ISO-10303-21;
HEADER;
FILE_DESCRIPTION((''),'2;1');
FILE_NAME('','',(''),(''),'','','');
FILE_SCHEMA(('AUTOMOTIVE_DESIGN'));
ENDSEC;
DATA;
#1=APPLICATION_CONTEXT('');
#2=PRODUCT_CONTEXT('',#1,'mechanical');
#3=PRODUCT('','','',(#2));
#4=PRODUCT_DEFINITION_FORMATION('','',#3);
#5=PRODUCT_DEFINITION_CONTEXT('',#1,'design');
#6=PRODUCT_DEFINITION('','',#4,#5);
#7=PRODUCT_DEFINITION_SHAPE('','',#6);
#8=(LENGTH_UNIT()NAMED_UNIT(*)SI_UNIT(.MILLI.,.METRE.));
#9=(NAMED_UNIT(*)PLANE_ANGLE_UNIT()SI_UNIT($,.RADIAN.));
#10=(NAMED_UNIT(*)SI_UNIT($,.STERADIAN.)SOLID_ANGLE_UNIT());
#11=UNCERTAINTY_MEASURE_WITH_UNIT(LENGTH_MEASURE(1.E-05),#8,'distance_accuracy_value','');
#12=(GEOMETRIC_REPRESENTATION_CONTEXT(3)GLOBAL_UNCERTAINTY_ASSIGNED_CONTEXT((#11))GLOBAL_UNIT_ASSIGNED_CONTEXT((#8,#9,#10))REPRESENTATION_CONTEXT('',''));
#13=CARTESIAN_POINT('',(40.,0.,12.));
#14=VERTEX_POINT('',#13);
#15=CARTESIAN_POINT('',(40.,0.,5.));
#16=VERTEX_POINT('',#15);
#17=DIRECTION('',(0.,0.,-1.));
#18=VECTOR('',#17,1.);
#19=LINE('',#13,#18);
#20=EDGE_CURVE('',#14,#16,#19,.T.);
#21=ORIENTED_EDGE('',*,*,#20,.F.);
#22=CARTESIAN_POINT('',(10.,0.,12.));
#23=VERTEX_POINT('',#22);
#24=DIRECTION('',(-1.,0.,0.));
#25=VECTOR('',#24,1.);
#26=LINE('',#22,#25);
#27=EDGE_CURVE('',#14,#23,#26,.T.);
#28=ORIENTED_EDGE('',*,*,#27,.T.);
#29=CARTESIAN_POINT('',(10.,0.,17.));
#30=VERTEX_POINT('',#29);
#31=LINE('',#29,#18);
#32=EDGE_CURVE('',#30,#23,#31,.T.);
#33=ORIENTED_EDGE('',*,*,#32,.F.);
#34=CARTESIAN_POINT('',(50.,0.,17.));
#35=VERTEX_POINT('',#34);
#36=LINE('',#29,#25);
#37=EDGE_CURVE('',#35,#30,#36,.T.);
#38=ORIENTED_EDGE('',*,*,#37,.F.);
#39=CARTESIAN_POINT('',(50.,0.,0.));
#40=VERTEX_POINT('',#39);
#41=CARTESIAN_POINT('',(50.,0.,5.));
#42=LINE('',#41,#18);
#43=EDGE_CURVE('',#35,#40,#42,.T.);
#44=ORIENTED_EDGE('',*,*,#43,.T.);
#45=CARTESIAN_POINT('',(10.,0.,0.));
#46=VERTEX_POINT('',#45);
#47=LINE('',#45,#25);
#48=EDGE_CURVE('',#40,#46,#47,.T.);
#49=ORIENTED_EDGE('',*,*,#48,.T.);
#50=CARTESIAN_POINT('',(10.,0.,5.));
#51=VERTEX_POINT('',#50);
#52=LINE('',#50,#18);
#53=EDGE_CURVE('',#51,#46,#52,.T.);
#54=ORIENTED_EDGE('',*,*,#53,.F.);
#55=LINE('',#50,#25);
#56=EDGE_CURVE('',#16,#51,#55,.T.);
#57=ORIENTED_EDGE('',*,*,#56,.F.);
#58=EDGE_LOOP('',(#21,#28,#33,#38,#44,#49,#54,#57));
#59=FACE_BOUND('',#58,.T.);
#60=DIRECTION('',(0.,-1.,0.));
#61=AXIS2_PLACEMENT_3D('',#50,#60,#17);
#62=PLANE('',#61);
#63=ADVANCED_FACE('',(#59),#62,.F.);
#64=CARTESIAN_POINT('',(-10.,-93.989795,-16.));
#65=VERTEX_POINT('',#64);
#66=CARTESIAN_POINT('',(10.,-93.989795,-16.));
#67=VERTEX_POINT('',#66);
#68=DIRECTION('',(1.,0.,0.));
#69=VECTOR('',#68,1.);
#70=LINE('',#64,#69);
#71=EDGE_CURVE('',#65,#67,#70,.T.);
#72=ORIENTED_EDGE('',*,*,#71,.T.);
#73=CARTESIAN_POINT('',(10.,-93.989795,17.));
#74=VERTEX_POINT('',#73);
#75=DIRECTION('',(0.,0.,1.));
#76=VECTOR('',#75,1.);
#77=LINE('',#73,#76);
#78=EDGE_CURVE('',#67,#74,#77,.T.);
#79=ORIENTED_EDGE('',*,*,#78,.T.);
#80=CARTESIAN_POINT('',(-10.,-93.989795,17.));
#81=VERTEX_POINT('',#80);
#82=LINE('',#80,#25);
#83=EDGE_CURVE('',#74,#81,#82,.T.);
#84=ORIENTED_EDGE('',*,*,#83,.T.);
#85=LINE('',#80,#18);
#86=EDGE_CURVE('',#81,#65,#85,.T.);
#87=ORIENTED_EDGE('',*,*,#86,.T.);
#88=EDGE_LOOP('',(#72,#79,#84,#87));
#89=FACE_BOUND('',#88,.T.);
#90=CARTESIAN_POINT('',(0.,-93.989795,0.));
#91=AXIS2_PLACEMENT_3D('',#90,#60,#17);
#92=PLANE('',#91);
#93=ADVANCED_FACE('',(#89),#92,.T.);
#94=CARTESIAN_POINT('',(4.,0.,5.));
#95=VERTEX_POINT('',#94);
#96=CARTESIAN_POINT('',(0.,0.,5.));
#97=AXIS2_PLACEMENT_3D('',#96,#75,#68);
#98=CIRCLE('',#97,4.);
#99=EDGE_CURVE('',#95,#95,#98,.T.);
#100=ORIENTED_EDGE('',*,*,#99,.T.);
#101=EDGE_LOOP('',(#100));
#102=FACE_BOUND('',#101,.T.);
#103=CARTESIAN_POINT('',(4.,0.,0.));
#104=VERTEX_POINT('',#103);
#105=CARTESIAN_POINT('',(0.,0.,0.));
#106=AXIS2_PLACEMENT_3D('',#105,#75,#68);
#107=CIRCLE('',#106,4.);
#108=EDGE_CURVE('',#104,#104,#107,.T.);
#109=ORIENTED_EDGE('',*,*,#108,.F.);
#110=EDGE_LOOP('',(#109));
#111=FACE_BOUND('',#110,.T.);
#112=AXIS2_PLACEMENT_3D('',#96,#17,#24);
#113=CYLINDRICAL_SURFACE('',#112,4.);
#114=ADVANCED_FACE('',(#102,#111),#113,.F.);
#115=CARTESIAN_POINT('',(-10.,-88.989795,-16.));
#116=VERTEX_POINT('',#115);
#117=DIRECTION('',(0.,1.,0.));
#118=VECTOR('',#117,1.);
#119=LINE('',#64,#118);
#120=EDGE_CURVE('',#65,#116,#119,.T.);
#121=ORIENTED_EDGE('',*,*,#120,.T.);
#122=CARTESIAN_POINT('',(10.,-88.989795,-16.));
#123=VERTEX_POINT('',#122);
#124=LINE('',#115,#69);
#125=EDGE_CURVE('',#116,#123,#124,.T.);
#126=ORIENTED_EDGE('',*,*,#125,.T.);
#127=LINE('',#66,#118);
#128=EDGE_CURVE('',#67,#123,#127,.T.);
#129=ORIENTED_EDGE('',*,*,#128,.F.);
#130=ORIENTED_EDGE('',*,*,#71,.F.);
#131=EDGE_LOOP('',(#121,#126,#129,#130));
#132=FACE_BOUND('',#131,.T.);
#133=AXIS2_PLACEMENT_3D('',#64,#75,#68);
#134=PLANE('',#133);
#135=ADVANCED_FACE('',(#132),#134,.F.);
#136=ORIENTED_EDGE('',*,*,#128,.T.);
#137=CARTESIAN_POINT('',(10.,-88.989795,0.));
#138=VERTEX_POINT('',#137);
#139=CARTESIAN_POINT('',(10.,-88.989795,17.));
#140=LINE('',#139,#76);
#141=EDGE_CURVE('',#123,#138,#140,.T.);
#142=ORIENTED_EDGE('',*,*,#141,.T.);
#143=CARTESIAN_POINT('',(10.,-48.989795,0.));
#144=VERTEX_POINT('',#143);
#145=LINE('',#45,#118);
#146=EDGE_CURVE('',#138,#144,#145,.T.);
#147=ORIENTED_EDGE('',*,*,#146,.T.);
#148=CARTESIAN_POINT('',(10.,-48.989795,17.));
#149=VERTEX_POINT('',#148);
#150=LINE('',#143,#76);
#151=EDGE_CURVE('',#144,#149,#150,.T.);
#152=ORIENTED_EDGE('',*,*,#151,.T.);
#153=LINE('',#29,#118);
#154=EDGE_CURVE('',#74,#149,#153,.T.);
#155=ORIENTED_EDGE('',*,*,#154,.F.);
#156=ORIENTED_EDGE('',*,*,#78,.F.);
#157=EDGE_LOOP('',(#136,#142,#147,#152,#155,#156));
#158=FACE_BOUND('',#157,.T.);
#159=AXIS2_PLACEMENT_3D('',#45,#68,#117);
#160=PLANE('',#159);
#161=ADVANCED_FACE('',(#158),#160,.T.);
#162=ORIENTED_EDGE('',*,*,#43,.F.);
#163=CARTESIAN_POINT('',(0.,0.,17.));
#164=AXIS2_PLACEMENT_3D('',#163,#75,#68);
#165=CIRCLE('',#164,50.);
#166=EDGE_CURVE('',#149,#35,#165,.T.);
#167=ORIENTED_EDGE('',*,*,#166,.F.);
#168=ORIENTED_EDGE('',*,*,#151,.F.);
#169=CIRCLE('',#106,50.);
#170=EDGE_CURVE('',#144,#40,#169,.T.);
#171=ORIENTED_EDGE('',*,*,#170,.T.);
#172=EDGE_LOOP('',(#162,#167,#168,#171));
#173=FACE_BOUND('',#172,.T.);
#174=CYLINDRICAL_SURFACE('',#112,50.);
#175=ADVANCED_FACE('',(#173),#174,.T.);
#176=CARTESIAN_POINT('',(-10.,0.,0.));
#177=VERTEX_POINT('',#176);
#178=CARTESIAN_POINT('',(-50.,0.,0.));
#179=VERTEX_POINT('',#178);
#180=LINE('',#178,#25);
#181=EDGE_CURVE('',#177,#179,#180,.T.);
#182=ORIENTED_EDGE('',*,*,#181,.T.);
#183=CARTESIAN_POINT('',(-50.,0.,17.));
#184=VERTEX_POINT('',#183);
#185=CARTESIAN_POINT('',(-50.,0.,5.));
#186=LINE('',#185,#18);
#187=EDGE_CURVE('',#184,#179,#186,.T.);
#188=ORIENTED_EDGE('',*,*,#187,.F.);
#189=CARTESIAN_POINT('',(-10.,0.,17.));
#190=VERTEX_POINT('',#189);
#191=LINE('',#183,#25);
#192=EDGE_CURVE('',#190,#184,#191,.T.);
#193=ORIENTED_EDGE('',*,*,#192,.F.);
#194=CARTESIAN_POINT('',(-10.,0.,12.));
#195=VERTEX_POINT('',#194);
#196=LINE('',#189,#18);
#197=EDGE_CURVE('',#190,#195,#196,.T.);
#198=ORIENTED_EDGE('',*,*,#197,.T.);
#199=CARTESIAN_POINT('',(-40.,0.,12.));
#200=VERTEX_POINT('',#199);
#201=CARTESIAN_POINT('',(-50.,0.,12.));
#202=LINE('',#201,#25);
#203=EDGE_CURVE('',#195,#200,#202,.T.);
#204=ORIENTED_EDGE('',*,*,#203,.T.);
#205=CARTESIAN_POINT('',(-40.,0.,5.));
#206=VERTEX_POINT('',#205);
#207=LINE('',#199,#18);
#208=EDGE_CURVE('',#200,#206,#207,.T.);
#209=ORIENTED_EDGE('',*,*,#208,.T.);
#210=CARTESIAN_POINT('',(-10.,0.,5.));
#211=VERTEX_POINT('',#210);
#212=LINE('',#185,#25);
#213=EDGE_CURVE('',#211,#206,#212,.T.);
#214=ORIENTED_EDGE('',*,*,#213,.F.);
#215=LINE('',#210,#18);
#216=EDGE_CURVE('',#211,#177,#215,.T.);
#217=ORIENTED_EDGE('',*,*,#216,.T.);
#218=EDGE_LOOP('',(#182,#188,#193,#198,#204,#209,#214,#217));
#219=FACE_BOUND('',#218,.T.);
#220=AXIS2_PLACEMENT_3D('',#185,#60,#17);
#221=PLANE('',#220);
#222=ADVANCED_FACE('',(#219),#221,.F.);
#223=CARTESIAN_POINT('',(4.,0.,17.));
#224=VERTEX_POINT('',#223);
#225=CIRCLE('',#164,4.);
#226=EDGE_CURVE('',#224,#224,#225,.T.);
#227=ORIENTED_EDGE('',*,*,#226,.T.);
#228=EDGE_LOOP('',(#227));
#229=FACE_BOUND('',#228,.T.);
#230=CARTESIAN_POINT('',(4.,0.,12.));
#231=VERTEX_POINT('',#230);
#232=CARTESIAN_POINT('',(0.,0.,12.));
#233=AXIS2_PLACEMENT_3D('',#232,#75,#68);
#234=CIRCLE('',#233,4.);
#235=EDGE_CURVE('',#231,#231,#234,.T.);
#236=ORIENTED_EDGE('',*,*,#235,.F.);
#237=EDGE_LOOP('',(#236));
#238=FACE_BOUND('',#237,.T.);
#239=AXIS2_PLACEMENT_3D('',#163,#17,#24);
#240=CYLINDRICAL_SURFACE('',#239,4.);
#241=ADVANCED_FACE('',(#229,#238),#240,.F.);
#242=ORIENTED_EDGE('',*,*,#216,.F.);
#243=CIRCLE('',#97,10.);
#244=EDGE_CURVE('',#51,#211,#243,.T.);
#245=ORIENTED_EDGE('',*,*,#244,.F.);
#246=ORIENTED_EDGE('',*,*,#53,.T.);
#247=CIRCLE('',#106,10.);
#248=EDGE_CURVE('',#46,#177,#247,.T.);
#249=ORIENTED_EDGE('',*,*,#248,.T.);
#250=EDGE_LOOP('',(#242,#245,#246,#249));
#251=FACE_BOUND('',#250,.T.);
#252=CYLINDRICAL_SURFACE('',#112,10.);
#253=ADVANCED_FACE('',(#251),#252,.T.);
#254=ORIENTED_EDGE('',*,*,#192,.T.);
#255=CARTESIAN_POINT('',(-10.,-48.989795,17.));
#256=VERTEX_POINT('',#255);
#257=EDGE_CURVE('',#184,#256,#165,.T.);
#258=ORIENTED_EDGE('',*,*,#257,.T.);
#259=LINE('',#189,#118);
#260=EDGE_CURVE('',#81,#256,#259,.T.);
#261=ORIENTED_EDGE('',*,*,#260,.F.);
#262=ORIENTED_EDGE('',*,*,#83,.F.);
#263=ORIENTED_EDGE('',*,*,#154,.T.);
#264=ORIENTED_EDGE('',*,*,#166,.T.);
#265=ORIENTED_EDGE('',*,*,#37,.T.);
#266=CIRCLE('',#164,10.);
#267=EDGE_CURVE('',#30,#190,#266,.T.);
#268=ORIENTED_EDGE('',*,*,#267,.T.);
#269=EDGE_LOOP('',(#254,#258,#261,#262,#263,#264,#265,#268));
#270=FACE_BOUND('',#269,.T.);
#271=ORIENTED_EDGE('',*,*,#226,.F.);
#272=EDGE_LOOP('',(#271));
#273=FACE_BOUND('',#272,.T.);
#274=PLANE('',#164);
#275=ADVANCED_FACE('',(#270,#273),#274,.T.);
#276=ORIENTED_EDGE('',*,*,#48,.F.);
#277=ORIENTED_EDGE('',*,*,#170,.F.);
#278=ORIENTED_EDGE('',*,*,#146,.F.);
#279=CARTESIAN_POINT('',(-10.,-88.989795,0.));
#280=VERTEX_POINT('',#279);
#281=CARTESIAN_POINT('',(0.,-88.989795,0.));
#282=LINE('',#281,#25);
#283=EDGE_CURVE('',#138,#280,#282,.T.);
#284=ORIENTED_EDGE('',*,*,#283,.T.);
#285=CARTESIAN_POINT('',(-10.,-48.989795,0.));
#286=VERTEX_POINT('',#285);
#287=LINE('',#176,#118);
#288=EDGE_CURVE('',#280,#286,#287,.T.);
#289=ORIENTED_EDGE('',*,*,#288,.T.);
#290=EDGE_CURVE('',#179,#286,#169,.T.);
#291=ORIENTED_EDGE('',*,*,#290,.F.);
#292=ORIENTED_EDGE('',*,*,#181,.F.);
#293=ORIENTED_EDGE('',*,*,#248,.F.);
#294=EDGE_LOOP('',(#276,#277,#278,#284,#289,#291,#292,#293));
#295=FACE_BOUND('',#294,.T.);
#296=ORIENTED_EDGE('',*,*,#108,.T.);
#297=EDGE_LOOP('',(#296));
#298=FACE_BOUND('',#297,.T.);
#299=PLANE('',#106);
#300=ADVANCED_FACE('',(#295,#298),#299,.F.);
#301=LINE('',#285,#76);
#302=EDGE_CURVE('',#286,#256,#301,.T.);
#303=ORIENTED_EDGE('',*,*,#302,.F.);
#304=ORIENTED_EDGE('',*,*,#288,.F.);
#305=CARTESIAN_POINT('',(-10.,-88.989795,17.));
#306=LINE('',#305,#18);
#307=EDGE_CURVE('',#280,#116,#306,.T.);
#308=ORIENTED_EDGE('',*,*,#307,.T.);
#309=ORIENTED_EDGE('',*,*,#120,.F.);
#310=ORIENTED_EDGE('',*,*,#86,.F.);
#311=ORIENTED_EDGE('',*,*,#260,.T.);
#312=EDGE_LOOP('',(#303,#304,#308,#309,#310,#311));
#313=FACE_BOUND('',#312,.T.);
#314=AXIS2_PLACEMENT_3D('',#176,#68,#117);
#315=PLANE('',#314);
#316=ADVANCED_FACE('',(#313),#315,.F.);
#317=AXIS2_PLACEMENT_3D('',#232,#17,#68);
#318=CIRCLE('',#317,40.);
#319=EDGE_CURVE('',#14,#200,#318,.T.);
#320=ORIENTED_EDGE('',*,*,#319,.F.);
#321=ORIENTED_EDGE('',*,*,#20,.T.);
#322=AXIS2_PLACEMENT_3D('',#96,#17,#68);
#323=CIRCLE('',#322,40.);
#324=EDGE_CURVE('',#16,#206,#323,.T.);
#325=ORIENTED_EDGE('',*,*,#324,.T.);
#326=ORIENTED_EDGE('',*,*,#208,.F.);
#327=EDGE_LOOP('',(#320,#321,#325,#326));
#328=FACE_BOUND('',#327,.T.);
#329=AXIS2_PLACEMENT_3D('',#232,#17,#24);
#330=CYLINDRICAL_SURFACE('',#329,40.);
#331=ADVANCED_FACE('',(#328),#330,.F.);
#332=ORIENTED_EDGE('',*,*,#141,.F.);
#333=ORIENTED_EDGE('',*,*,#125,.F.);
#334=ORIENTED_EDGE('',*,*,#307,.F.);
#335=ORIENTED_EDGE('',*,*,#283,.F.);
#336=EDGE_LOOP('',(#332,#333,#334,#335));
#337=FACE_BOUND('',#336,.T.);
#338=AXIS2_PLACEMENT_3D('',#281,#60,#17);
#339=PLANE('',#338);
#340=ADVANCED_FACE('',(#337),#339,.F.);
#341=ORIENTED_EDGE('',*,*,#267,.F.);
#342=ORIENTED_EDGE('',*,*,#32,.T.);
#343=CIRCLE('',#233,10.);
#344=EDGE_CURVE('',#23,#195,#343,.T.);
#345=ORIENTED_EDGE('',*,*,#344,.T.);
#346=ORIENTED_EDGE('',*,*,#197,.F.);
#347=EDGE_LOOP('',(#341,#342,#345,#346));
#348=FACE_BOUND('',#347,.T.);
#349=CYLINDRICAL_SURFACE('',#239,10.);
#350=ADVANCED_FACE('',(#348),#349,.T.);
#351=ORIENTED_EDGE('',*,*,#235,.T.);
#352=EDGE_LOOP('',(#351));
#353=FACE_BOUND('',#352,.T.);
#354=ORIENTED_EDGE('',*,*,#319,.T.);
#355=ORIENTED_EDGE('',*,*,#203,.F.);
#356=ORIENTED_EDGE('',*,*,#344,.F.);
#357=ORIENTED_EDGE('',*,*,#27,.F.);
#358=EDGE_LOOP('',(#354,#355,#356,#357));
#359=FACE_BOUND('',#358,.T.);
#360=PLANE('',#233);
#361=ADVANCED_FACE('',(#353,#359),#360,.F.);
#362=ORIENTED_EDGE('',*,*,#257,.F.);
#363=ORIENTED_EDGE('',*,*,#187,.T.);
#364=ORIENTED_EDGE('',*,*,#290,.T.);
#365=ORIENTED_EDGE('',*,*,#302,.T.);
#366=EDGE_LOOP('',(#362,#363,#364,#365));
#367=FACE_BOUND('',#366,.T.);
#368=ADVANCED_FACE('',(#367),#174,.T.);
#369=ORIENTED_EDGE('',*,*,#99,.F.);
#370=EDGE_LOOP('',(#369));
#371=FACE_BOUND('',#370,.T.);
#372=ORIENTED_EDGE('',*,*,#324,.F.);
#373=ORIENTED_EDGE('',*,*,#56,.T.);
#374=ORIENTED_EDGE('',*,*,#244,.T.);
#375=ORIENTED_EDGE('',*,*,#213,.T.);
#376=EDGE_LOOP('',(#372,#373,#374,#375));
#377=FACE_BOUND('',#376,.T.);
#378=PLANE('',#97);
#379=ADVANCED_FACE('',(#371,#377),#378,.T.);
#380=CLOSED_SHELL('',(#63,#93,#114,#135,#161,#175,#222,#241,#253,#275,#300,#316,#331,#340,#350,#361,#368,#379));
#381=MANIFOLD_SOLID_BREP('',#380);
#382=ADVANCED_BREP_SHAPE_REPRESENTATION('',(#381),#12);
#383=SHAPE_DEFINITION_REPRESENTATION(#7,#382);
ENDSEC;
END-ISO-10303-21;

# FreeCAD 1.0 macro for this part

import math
import FreeCAD as App
import Part
import Sketcher

V = App.Vector
Q = App.Units.Quantity

doc = App.newDocument("Part")
body = doc.addObject("PartDesign::Body", "Body")

# Sketch on XY plane
sketch1 = body.newObject("Sketcher::SketchObject", "Sketch")
sketch1.AttachmentSupport = (doc.getObject("XY_Plane"), [""])
sketch1.MapMode = "FlatFace"
sketch1.addGeometry(Part.LineSegment(V(-10, 0, 0), V(-50, 0, 0)), False)
sketch1.addGeometry(Part.ArcOfCircle(Part.Circle(V(0, 0, 0), V(0, 0, 1), 50), math.radians(180), math.radians(360)), False)
sketch1.addGeometry(Part.LineSegment(V(50, 0, 0), V(10, 0, 0)), False)
sketch1.addGeometry(Part.ArcOfCircle(Part.Circle(V(0, 0, 0), V(0, 0, 1), 10), math.radians(0), math.radians(180)), False)
sketch1.addGeometry(Part.Circle(V(0, 0, 0), V(0, 0, 1), 4), False)
sketch1.addConstraint(Sketcher.Constraint("Coincident", 0, 2, 1, 1))
sketch1.addConstraint(Sketcher.Constraint("Coincident", 1, 2, 2, 1))
sketch1.addConstraint(Sketcher.Constraint("Coincident", 2, 2, 3, 1))
sketch1.addConstraint(Sketcher.Constraint("Coincident", 3, 2, 0, 1))
sketch1.addConstraint(Sketcher.Constraint("Horizontal", 0))
sketch1.addConstraint(Sketcher.Constraint("Horizontal", 2))
sketch1.addConstraint(Sketcher.Constraint("Coincident", 1, 3, -1, 1))
sketch1.addConstraint(Sketcher.Constraint("Coincident", 3, 3, -1, 1))
sketch1.addConstraint(Sketcher.Constraint("Coincident", 4, 3, -1, 1))
sketch1.addConstraint(Sketcher.Constraint("PointOnObject", 0, 2, -1))
sketch1.addConstraint(Sketcher.Constraint("PointOnObject", 1, 2, -1))
sketch1.addConstraint(Sketcher.Constraint("Diameter", 4, Q("8 mm")))
sketch1.addConstraint(Sketcher.Constraint("Radius", 1, Q("50 mm")))
sketch1.addConstraint(Sketcher.Constraint("Radius", 3, Q("10 mm")))
pad1 = body.newObject("PartDesign::Pad", "Pad")
pad1.Profile = sketch1
pad1.Length = 5

# Sketch on XY plane
sketch2 = body.newObject("Sketcher::SketchObject", "Sketch001")
sketch2.AttachmentSupport = (doc.getObject("XY_Plane"), [""])
sketch2.MapMode = "FlatFace"
sketch2.AttachmentOffset = App.Placement(V(0, 0, 5), App.Rotation())
sketch2.addGeometry(Part.LineSegment(V(-40, 0, 0), V(-50, 0, 0)), False)
sketch2.addGeometry(Part.ArcOfCircle(Part.Circle(V(0, 0, 0), V(0, 0, 1), 50), math.radians(180), math.radians(360)), False)
sketch2.addGeometry(Part.LineSegment(V(50, 0, 0), V(40, 0, 0)), False)
sketch2.addGeometry(Part.ArcOfCircle(Part.Circle(V(0, 0, 0), V(0, 0, 1), 40), math.radians(180), math.radians(360)), False)
sketch2.addConstraint(Sketcher.Constraint("Coincident", 0, 2, 1, 1))
sketch2.addConstraint(Sketcher.Constraint("Coincident", 1, 2, 2, 1))
sketch2.addConstraint(Sketcher.Constraint("Coincident", 2, 2, 3, 2))
sketch2.addConstraint(Sketcher.Constraint("Coincident", 3, 1, 0, 1))
sketch2.addConstraint(Sketcher.Constraint("Horizontal", 0))
sketch2.addConstraint(Sketcher.Constraint("Horizontal", 2))
sketch2.addConstraint(Sketcher.Constraint("Coincident", 1, 3, -1, 1))
sketch2.addConstraint(Sketcher.Constraint("Coincident", 3, 3, -1, 1))
sketch2.addConstraint(Sketcher.Constraint("PointOnObject", 0, 2, -1))
sketch2.addConstraint(Sketcher.Constraint("PointOnObject", 1, 2, -1))
sketch2.addConstraint(Sketcher.Constraint("Radius", 1, Q("50 mm")))
sketch2.addConstraint(Sketcher.Constraint("Radius", 3, Q("40 mm")))
pad2 = body.newObject("PartDesign::Pad", "Pad001")
pad2.Profile = sketch2
pad2.Length = 7

# Sketch on XY plane
sketch3 = body.newObject("Sketcher::SketchObject", "Sketch002")
sketch3.AttachmentSupport = (doc.getObject("XY_Plane"), [""])
sketch3.MapMode = "FlatFace"
sketch3.AttachmentOffset = App.Placement(V(0, 0, 12), App.Rotation())
sketch3.addGeometry(Part.LineSegment(V(-10, 0, 0), V(-50, 0, 0)), False)
sketch3.addGeometry(Part.ArcOfCircle(Part.Circle(V(0, 0, 0), V(0, 0, 1), 50), math.radians(180), math.radians(360)), False)
sketch3.addGeometry(Part.LineSegment(V(50, 0, 0), V(10, 0, 0)), False)
sketch3.addGeometry(Part.ArcOfCircle(Part.Circle(V(0, 0, 0), V(0, 0, 1), 10), math.radians(0), math.radians(180)), False)
sketch3.addGeometry(Part.Circle(V(0, 0, 0), V(0, 0, 1), 4), False)
sketch3.addConstraint(Sketcher.Constraint("Coincident", 0, 2, 1, 1))
sketch3.addConstraint(Sketcher.Constraint("Coincident", 1, 2, 2, 1))
sketch3.addConstraint(Sketcher.Constraint("Coincident", 2, 2, 3, 1))
sketch3.addConstraint(Sketcher.Constraint("Coincident", 3, 2, 0, 1))
sketch3.addConstraint(Sketcher.Constraint("Horizontal", 0))
sketch3.addConstraint(Sketcher.Constraint("Horizontal", 2))
sketch3.addConstraint(Sketcher.Constraint("Coincident", 1, 3, -1, 1))
sketch3.addConstraint(Sketcher.Constraint("Coincident", 3, 3, -1, 1))
sketch3.addConstraint(Sketcher.Constraint("Coincident", 4, 3, -1, 1))
sketch3.addConstraint(Sketcher.Constraint("PointOnObject", 0, 2, -1))
sketch3.addConstraint(Sketcher.Constraint("PointOnObject", 1, 2, -1))
sketch3.addConstraint(Sketcher.Constraint("Diameter", 4, Q("8 mm")))
sketch3.addConstraint(Sketcher.Constraint("Radius", 1, Q("50 mm")))
sketch3.addConstraint(Sketcher.Constraint("Radius", 3, Q("10 mm")))
pad3 = body.newObject("PartDesign::Pad", "Pad002")
pad3.Profile = sketch3
pad3.Length = 5

# Sketch on XY plane
sketch4 = body.newObject("Sketcher::SketchObject", "Sketch003")
sketch4.AttachmentSupport = (doc.getObject("XY_Plane"), [""])
sketch4.MapMode = "FlatFace"
sketch4.addGeometry(Part.LineSegment(V(-10, -89, 0), V(10, -89, 0)), False)
sketch4.addGeometry(Part.LineSegment(V(10, -89, 0), V(10, -49, 0)), False)
sketch4.addGeometry(Part.ArcOfCircle(Part.Circle(V(0, 0, 0), V(0, 0, 1), 50), math.radians(-102), math.radians(-78)), False)
sketch4.addGeometry(Part.LineSegment(V(-10, -49, 0), V(-10, -89, 0)), False)
sketch4.addConstraint(Sketcher.Constraint("Coincident", 0, 2, 1, 1))
sketch4.addConstraint(Sketcher.Constraint("Coincident", 1, 2, 2, 2))
sketch4.addConstraint(Sketcher.Constraint("Coincident", 2, 1, 3, 1))
sketch4.addConstraint(Sketcher.Constraint("Coincident", 3, 2, 0, 1))
sketch4.addConstraint(Sketcher.Constraint("Horizontal", 0))
sketch4.addConstraint(Sketcher.Constraint("Vertical", 1))
sketch4.addConstraint(Sketcher.Constraint("Vertical", 3))
sketch4.addConstraint(Sketcher.Constraint("Coincident", 2, 3, -1, 1))
sketch4.addConstraint(Sketcher.Constraint("Horizontal", 1, 2, 2, 1))
sketch4.addConstraint(Sketcher.Constraint("Radius", 2, Q("50 mm")))
sketch4.addConstraint(Sketcher.Constraint("DistanceX", 0, 1, 0, 2, Q("20 mm")))
sketch4.addConstraint(Sketcher.Constraint("DistanceY", 1, 1, 1, 2, Q("40 mm")))
pad4 = body.newObject("PartDesign::Pad", "Pad003")
pad4.Profile = sketch4
pad4.Length = 17

# Sketch on XZ plane
sketch5 = body.newObject("Sketcher::SketchObject", "Sketch004")
sketch5.AttachmentSupport = (doc.getObject("XZ_Plane"), [""])
sketch5.MapMode = "FlatFace"
sketch5.AttachmentOffset = App.Placement(V(0, 0, 88.989795), App.Rotation())
sketch5.addGeometry(Part.LineSegment(V(-10, 17, 0), V(-10, -16, 0)), False)
sketch5.addGeometry(Part.LineSegment(V(-10, -16, 0), V(10, -16, 0)), False)
sketch5.addGeometry(Part.LineSegment(V(10, -16, 0), V(10, 17, 0)), False)
sketch5.addGeometry(Part.LineSegment(V(10, 17, 0), V(-10, 17, 0)), False)
sketch5.addConstraint(Sketcher.Constraint("Coincident", 0, 2, 1, 1))
sketch5.addConstraint(Sketcher.Constraint("Coincident", 1, 2, 2, 1))
sketch5.addConstraint(Sketcher.Constraint("Coincident", 2, 2, 3, 1))
sketch5.addConstraint(Sketcher.Constraint("Coincident", 3, 2, 0, 1))
sketch5.addConstraint(Sketcher.Constraint("Vertical", 0))
sketch5.addConstraint(Sketcher.Constraint("Horizontal", 1))
sketch5.addConstraint(Sketcher.Constraint("Vertical", 2))
sketch5.addConstraint(Sketcher.Constraint("Horizontal", 3))
sketch5.addConstraint(Sketcher.Constraint("DistanceX", 1, 1, 1, 2, Q("20 mm")))
sketch5.addConstraint(Sketcher.Constraint("DistanceY", 0, 2, 0, 1, Q("33 mm")))
sketch5.addConstraint(Sketcher.Constraint("DistanceX", 0, 2, -1, 1, Q("10 mm")))
sketch5.addConstraint(Sketcher.Constraint("DistanceY", 0, 2, -1, 1, Q("16 mm")))
pad5 = body.newObject("PartDesign::Pad", "Pad004")
pad5.Profile = sketch5
pad5.Length = 5

doc.recompute()
